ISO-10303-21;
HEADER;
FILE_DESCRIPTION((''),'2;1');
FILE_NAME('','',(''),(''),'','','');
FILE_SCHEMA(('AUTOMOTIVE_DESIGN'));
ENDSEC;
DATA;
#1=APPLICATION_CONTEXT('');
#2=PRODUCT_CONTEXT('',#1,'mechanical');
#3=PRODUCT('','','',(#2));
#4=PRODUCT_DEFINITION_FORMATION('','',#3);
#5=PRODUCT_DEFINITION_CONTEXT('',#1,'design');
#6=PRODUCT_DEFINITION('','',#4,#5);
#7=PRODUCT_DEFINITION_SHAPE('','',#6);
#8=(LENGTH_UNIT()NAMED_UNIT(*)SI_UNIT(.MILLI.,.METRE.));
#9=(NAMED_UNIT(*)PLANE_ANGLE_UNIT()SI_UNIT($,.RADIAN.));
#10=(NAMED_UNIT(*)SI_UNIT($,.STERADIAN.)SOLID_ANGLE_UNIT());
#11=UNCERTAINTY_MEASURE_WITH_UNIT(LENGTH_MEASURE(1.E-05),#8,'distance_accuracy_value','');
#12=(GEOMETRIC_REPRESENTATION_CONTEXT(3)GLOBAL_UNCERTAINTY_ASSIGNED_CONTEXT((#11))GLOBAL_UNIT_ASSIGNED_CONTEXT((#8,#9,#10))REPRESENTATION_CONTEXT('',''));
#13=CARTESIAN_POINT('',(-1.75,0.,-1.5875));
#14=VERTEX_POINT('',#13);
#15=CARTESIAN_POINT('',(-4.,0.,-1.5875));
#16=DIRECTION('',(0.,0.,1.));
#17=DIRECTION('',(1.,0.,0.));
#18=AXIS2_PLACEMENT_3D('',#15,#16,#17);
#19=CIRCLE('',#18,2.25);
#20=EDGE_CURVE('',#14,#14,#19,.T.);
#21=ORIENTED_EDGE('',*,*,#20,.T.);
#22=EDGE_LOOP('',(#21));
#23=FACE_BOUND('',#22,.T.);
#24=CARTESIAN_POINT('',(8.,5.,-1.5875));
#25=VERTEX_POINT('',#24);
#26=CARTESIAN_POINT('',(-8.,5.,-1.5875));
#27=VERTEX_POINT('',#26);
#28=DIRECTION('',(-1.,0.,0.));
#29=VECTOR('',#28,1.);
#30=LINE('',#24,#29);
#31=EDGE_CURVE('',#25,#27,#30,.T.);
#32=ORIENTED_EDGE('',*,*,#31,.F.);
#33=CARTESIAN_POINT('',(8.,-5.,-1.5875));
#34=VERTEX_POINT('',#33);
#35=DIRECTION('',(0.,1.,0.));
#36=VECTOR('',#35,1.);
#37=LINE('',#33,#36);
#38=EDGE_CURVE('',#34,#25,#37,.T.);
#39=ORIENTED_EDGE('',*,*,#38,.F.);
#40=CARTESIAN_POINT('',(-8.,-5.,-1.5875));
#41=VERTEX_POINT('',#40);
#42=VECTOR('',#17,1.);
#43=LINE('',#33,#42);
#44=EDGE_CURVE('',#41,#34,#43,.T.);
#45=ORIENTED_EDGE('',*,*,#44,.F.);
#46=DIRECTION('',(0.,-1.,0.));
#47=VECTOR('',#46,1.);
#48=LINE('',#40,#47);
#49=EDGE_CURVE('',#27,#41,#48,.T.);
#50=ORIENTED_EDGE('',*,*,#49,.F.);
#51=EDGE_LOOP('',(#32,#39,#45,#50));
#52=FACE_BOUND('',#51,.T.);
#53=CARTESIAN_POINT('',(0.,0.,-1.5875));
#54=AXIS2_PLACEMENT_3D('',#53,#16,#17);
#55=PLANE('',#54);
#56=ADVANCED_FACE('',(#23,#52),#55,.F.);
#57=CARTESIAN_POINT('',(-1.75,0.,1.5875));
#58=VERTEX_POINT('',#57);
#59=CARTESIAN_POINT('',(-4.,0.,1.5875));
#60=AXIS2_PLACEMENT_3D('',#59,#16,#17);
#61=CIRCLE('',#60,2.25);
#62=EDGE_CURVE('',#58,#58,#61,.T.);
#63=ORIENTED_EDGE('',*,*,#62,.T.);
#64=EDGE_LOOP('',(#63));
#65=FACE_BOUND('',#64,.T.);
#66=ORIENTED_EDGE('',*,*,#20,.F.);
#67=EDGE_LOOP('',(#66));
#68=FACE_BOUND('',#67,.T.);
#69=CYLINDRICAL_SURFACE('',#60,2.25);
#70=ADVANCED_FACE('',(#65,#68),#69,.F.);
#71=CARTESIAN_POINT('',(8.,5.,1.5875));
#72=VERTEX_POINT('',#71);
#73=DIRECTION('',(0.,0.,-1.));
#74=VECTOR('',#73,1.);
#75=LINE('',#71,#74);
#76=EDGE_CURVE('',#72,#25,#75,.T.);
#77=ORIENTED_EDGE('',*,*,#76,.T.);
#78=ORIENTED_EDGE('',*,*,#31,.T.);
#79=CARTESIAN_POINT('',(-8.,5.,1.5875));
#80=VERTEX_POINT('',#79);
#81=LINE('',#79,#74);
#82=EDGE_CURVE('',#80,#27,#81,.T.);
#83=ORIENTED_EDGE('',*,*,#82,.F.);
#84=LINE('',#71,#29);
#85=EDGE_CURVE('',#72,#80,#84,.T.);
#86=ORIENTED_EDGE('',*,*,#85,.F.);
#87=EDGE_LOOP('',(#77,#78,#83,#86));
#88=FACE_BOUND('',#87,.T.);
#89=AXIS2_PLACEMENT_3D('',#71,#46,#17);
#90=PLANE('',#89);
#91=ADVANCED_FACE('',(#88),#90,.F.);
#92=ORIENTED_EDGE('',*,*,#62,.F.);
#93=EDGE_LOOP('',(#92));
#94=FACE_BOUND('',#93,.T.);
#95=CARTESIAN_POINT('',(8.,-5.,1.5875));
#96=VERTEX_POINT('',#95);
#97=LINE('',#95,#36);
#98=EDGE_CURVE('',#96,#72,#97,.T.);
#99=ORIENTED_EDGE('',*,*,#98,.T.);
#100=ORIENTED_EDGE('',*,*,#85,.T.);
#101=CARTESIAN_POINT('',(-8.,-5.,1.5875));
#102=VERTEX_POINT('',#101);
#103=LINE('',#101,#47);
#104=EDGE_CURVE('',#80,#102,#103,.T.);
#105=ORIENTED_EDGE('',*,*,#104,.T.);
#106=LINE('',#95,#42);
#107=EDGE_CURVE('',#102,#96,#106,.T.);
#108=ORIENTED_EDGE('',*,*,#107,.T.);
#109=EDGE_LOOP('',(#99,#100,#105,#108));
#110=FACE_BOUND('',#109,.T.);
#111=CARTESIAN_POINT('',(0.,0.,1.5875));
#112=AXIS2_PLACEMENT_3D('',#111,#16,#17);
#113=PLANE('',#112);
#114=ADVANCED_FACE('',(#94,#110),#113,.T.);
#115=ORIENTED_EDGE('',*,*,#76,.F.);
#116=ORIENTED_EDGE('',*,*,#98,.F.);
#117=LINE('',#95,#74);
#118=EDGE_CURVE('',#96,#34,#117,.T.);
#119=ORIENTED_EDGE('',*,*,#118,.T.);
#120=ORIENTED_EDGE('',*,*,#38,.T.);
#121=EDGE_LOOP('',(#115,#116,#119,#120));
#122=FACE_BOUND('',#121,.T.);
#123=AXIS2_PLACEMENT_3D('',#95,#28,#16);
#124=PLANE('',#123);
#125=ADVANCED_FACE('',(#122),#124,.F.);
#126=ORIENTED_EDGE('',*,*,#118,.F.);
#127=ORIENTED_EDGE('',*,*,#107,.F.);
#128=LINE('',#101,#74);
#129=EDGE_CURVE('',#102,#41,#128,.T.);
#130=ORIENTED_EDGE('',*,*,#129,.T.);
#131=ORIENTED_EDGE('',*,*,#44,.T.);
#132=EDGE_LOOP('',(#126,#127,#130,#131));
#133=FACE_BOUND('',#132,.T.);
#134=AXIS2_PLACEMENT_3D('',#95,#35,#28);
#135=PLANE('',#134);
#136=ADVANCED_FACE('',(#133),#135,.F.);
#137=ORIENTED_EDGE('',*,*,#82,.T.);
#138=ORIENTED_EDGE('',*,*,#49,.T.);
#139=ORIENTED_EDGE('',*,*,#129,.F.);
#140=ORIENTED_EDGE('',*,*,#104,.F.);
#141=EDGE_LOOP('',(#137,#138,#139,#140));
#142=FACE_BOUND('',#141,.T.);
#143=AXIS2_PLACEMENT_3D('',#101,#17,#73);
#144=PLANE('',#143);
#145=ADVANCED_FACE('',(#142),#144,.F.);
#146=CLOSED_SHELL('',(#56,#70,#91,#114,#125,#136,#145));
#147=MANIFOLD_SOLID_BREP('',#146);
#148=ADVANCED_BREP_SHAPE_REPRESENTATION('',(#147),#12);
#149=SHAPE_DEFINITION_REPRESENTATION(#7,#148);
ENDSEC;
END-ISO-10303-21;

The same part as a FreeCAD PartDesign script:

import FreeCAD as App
import Part
import Sketcher


def add_polygon(sketch, points):
    """Adds a closed chain of lines whose ends are joined by coincident constraints."""
    first, n = sketch.GeometryCount, len(points)
    for a, b in zip(points, points[1:] + points[:1]):
        sketch.addGeometry(Part.LineSegment(App.Vector(*a, 0), App.Vector(*b, 0)), False)
    for i in range(n):
        sketch.addConstraint(Sketcher.Constraint("Coincident", first + i, 2, first + (i + 1) % n, 1))

doc = App.newDocument("Part")
body = doc.addObject("PartDesign::Body", "Body")

sketch1 = doc.addObject("Sketcher::SketchObject", "Sketch")
body.addObject(sketch1)
sketch1.AttachmentSupport = (doc.XY_Plane, [""])
sketch1.MapMode = "FlatFace"
add_polygon(sketch1, [(-8, 5), (-8, -5), (8, -5), (8, 5)])
sketch1.addConstraint(Sketcher.Constraint("Vertical", 0))
sketch1.addConstraint(Sketcher.Constraint("Horizontal", 1))
sketch1.addConstraint(Sketcher.Constraint("Vertical", 2))
sketch1.addConstraint(Sketcher.Constraint("Horizontal", 3))
sketch1.addConstraint(Sketcher.Constraint("Symmetric", 0, 2, 2, 2, -1, 1))
sketch1.addConstraint(Sketcher.Constraint("DistanceX", 1, 1, 1, 2, 16.0))
sketch1.addConstraint(Sketcher.Constraint("DistanceY", 0, 2, 0, 1, 10.0))
pad1 = doc.addObject("PartDesign::Pad", "Pad")
body.addObject(pad1)
pad1.Profile = sketch1
pad1.Length = 3.175
pad1.Midplane = True

sketch2 = doc.addObject("Sketcher::SketchObject", "Sketch001")
body.addObject(sketch2)
sketch2.AttachmentSupport = (doc.XY_Plane, [""])
sketch2.MapMode = "FlatFace"
sketch2.AttachmentOffset = App.Placement(App.Vector(0, 0, 1.5875), App.Rotation())
sketch2.addGeometry(Part.Circle(App.Vector(-4, 0, 0), App.Vector(0, 0, 1), 2.25), False)
sketch2.addConstraint(Sketcher.Constraint("PointOnObject", 0, 3, -1))
sketch2.addConstraint(Sketcher.Constraint("Diameter", 0, 4.5))
sketch2.addConstraint(Sketcher.Constraint("DistanceX", 0, 3, -1, 1, 4.0))
doc.recompute()
hole = doc.addObject("PartDesign::Hole", "Hole")
body.addObject(hole)
hole.Profile = sketch2
hole.ThreadType = "None"
hole.Diameter = 4.5
hole.DepthType = "ThroughAll"

doc.recompute()
